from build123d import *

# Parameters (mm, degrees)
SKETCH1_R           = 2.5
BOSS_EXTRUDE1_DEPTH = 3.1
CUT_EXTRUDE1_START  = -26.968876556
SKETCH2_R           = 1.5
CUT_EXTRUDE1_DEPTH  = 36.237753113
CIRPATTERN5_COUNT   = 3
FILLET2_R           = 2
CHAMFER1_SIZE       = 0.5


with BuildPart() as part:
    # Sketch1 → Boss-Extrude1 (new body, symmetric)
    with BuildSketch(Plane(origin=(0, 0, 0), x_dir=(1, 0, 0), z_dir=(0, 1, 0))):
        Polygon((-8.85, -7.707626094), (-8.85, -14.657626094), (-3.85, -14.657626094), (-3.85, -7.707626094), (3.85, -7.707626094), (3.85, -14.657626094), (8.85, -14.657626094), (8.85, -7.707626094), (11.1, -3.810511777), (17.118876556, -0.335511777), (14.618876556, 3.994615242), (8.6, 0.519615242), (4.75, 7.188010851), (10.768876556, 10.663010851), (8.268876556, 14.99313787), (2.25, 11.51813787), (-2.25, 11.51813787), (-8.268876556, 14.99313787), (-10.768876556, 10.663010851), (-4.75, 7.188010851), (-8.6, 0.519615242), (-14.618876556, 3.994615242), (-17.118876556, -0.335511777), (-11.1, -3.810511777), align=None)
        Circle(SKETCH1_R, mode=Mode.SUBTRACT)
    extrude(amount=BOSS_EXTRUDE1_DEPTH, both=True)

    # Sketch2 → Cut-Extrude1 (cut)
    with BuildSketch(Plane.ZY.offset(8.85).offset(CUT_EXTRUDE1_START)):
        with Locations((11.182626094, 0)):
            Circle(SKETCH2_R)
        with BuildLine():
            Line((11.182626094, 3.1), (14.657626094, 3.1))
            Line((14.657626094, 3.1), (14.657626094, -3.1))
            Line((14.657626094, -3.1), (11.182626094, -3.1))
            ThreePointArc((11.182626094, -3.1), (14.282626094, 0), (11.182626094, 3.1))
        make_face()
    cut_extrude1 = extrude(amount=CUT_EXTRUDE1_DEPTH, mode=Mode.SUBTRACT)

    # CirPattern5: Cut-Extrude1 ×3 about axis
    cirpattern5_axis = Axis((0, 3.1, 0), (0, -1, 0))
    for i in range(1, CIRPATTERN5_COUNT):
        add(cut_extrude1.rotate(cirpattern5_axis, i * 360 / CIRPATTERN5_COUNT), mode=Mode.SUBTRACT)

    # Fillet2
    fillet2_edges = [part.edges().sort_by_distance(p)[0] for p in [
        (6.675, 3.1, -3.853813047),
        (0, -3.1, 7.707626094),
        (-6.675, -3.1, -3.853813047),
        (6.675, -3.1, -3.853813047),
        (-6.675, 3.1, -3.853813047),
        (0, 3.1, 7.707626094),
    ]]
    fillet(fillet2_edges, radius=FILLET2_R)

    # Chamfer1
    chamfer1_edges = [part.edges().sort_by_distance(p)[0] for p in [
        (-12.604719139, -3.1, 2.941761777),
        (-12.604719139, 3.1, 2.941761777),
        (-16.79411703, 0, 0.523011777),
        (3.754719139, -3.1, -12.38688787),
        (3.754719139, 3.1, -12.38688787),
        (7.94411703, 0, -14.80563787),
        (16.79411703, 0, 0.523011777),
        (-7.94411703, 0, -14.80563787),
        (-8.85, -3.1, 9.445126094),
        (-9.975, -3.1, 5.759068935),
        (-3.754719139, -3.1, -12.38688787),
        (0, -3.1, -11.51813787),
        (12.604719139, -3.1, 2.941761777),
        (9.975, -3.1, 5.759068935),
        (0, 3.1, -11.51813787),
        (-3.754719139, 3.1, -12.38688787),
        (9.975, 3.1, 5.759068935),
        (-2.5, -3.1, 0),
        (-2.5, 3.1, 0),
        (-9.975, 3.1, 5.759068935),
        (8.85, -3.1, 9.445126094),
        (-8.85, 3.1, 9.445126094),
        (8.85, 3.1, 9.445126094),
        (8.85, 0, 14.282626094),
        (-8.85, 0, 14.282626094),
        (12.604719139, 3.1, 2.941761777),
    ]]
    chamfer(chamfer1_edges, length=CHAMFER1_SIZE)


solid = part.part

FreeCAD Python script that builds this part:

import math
import FreeCAD as App
import Part
import Sketcher
Q = App.Units.Quantity


def edges_at(feature, points):
    """Names of the edges that pass closest to the given points."""
    edges = feature.Shape.Edges
    near = lambda p: min(range(len(edges)), key=lambda i: edges[i].distToShape(Part.Vertex(*p))[0])
    return sorted({f"Edge{near(p) + 1}" for p in points})

doc = App.newDocument("Part")
params = doc.addObject("Spreadsheet::Sheet", "Params")
for row, (alias, value) in enumerate([
    ("sketch1_diameter", "5 mm"),
    ("sketch1_width", "5 mm"),
    ("sketch1_length", "5 mm"),
    ("sketch1_width2", "7.7 mm"),
    ("sketch1_width3", "4.5 mm"),
    ("pad1_length", "6.2 mm"),
    ("sketch2_diameter", "3 mm"),
    ("sketch2_radius", "3.1 mm"),
    ("pocket1_length", "36.237753 mm"),
    ("fillet_radius", "2 mm"),
    ("chamfer_size", "0.5 mm"),
], start=1):
    params.set(f"A{row}", alias)
    params.set(f"B{row}", "=" + value)
    params.setAlias(f"B{row}", alias)

body = doc.addObject("PartDesign::Body", "Body")

# Sketch on XZ plane
sketch1 = body.newObject("Sketcher::SketchObject", "Sketch")
sketch1.AttachmentSupport = (doc.getObject("XZ_Plane"), [""])
sketch1.MapMode = "FlatFace"
sketch1.addGeometry(Part.LineSegment(App.Vector(-8.8, 7.7, 0), App.Vector(-8.8, 14.7, 0)), False)
sketch1.addGeometry(Part.LineSegment(App.Vector(-8.8, 14.7, 0), App.Vector(-3.9, 14.7, 0)), False)
sketch1.addGeometry(Part.LineSegment(App.Vector(-3.9, 14.7, 0), App.Vector(-3.9, 7.7, 0)), False)
sketch1.addGeometry(Part.LineSegment(App.Vector(-3.9, 7.7, 0), App.Vector(3.9, 7.7, 0)), False)
sketch1.addGeometry(Part.LineSegment(App.Vector(3.9, 7.7, 0), App.Vector(3.9, 14.7, 0)), False)
sketch1.addGeometry(Part.LineSegment(App.Vector(3.9, 14.7, 0), App.Vector(8.8, 14.7, 0)), False)
sketch1.addGeometry(Part.LineSegment(App.Vector(8.8, 14.7, 0), App.Vector(8.8, 7.7, 0)), False)
sketch1.addGeometry(Part.LineSegment(App.Vector(8.8, 7.7, 0), App.Vector(11.1, 3.8, 0)), False)
sketch1.addGeometry(Part.LineSegment(App.Vector(11.1, 3.8, 0), App.Vector(17.1, 0.3, 0)), False)
sketch1.addGeometry(Part.LineSegment(App.Vector(17.1, 0.3, 0), App.Vector(14.6, -4, 0)), False)
sketch1.addGeometry(Part.LineSegment(App.Vector(14.6, -4, 0), App.Vector(8.6, -0.5, 0)), False)
sketch1.addGeometry(Part.LineSegment(App.Vector(8.6, -0.5, 0), App.Vector(4.8, -7.2, 0)), False)
sketch1.addGeometry(Part.LineSegment(App.Vector(4.8, -7.2, 0), App.Vector(10.8, -10.7, 0)), False)
sketch1.addGeometry(Part.LineSegment(App.Vector(10.8, -10.7, 0), App.Vector(8.3, -15, 0)), False)
sketch1.addGeometry(Part.LineSegment(App.Vector(8.3, -15, 0), App.Vector(2.2, -11.5, 0)), False)
sketch1.addGeometry(Part.LineSegment(App.Vector(2.2, -11.5, 0), App.Vector(-2.2, -11.5, 0)), False)
sketch1.addGeometry(Part.LineSegment(App.Vector(-2.2, -11.5, 0), App.Vector(-8.3, -15, 0)), False)
sketch1.addGeometry(Part.LineSegment(App.Vector(-8.3, -15, 0), App.Vector(-10.8, -10.7, 0)), False)
sketch1.addGeometry(Part.LineSegment(App.Vector(-10.8, -10.7, 0), App.Vector(-4.8, -7.2, 0)), False)
sketch1.addGeometry(Part.LineSegment(App.Vector(-4.8, -7.2, 0), App.Vector(-8.6, -0.5, 0)), False)
sketch1.addGeometry(Part.LineSegment(App.Vector(-8.6, -0.5, 0), App.Vector(-14.6, -4, 0)), False)
sketch1.addGeometry(Part.LineSegment(App.Vector(-14.6, -4, 0), App.Vector(-17.1, 0.3, 0)), False)
sketch1.addGeometry(Part.LineSegment(App.Vector(-17.1, 0.3, 0), App.Vector(-11.1, 3.8, 0)), False)
sketch1.addGeometry(Part.LineSegment(App.Vector(-11.1, 3.8, 0), App.Vector(-8.8, 7.7, 0)), False)
sketch1.addGeometry(Part.Circle(App.Vector(0, 0, 0), App.Vector(0, 0, 1), 2.5), False)
sketch1.addConstraint(Sketcher.Constraint("Coincident", 0, 2, 1, 1))
sketch1.addConstraint(Sketcher.Constraint("Coincident", 1, 2, 2, 1))
sketch1.addConstraint(Sketcher.Constraint("Coincident", 2, 2, 3, 1))
sketch1.addConstraint(Sketcher.Constraint("Coincident", 3, 2, 4, 1))
sketch1.addConstraint(Sketcher.Constraint("Coincident", 4, 2, 5, 1))
sketch1.addConstraint(Sketcher.Constraint("Coincident", 5, 2, 6, 1))
sketch1.addConstraint(Sketcher.Constraint("Coincident", 6, 2, 7, 1))
sketch1.addConstraint(Sketcher.Constraint("Coincident", 7, 2, 8, 1))
sketch1.addConstraint(Sketcher.Constraint("Coincident", 8, 2, 9, 1))
sketch1.addConstraint(Sketcher.Constraint("Coincident", 9, 2, 10, 1))
sketch1.addConstraint(Sketcher.Constraint("Coincident", 10, 2, 11, 1))
sketch1.addConstraint(Sketcher.Constraint("Coincident", 11, 2, 12, 1))
sketch1.addConstraint(Sketcher.Constraint("Coincident", 12, 2, 13, 1))
sketch1.addConstraint(Sketcher.Constraint("Coincident", 13, 2, 14, 1))
sketch1.addConstraint(Sketcher.Constraint("Coincident", 14, 2, 15, 1))
sketch1.addConstraint(Sketcher.Constraint("Coincident", 15, 2, 16, 1))
sketch1.addConstraint(Sketcher.Constraint("Coincident", 16, 2, 17, 1))
sketch1.addConstraint(Sketcher.Constraint("Coincident", 17, 2, 18, 1))
sketch1.addConstraint(Sketcher.Constraint("Coincident", 18, 2, 19, 1))
sketch1.addConstraint(Sketcher.Constraint("Coincident", 19, 2, 20, 1))
sketch1.addConstraint(Sketcher.Constraint("Coincident", 20, 2, 21, 1))
sketch1.addConstraint(Sketcher.Constraint("Coincident", 21, 2, 22, 1))
sketch1.addConstraint(Sketcher.Constraint("Coincident", 22, 2, 23, 1))
sketch1.addConstraint(Sketcher.Constraint("Coincident", 23, 2, 0, 1))
sketch1.addConstraint(Sketcher.Constraint("Vertical", 0))
sketch1.addConstraint(Sketcher.Constraint("Horizontal", 1))
sketch1.addConstraint(Sketcher.Constraint("Vertical", 2))
sketch1.addConstraint(Sketcher.Constraint("Horizontal", 3))
sketch1.addConstraint(Sketcher.Constraint("Vertical", 4))
sketch1.addConstraint(Sketcher.Constraint("Horizontal", 5))
sketch1.addConstraint(Sketcher.Constraint("Vertical", 6))
sketch1.addConstraint(Sketcher.Constraint("Horizontal", 15))
sketch1.addConstraint(Sketcher.Constraint("Coincident", 24, 3, -1, 1))
sketch1.addConstraint(Sketcher.Constraint("Symmetric", 1, 2, 4, 2, -2))
sketch1.addConstraint(Sketcher.Constraint("Symmetric", 13, 2, 16, 2, -2))
sketch1.addConstraint(Sketcher.Constraint("Symmetric", 12, 2, 17, 2, -2))
sketch1.addConstraint(Sketcher.Constraint("Symmetric", 11, 2, 18, 2, -2))
sketch1.addConstraint(Sketcher.Constraint("Symmetric", 10, 2, 19, 2, -2))
sketch1.addConstraint(Sketcher.Constraint("Symmetric", 9, 2, 20, 2, -2))
sketch1.addConstraint(Sketcher.Constraint("Symmetric", 8, 2, 21, 2, -2))
sketch1.addConstraint(Sketcher.Constraint("Symmetric", 7, 2, 22, 2, -2))
sketch1.addConstraint(Sketcher.Constraint("Symmetric", 6, 2, 23, 2, -2))
sketch1.addConstraint(Sketcher.Constraint("Perpendicular", 8, 9))
sketch1.addConstraint(Sketcher.Constraint("Perpendicular", 9, 10))
sketch1.addConstraint(Sketcher.Constraint("Perpendicular", 10, 11))
sketch1.addConstraint(Sketcher.Constraint("Perpendicular", 11, 12))
sketch1.addConstraint(Sketcher.Constraint("Perpendicular", 12, 13))
sketch1.addConstraint(Sketcher.Constraint("Perpendicular", 13, 14))
sketch1.addConstraint(Sketcher.Constraint("Perpendicular", 7, 16))
sketch1.addConstraint(Sketcher.Constraint("Perpendicular", 16, 17))
sketch1.addConstraint(Sketcher.Constraint("Horizontal", 3, 2, 6, 2))
sketch1.addConstraint(Sketcher.Constraint("Equal", 8, 10))
sketch1.addConstraint(Sketcher.Constraint("Equal", 10, 12))
sketch1.addConstraint(Sketcher.Constraint("Equal", 9, 13))
sketch1.addConstraint(Sketcher.Constraint("Equal", 12, 14))
sketch1.addConstraint(Sketcher.Constraint("Diameter", 24, Q("5 mm")))
sketch1.addConstraint(Sketcher.Constraint("DistanceX", 1, 1, 1, 2, Q("5 mm")))
sketch1.addConstraint(Sketcher.Constraint("Angle", 7, Q("-60 deg")))
sketch1.addConstraint(Sketcher.Constraint("Distance", 9, Q("5 mm")))
sketch1.addConstraint(Sketcher.Constraint("DistanceX", 3, 1, 3, 2, Q("7.7 mm")))
sketch1.addConstraint(Sketcher.Constraint("DistanceX", 15, 2, 15, 1, Q("4.5 mm")))
sketch1.addConstraint(Sketcher.Constraint("Distance", 7, Q("4.5 mm")))
sketch1.addConstraint(Sketcher.Constraint("DistanceY", 0, 1, 0, 2, Q("6.95 mm")))
sketch1.addConstraint(Sketcher.Constraint("Distance", 8, Q("6.95 mm")))
sketch1.addConstraint(Sketcher.Constraint("DistanceY", -1, 1, 7, 2, Q("3.810512 mm")))
sketch1.setExpression("Constraints[55]", "Params.sketch1_diameter")
sketch1.setExpression("Constraints[56]", "Params.sketch1_width")
sketch1.setExpression("Constraints[58]", "Params.sketch1_length")
sketch1.setExpression("Constraints[59]", "Params.sketch1_width2")
sketch1.setExpression("Constraints[60]", "Params.sketch1_width3")
pad1 = body.newObject("PartDesign::Pad", "Pad")
pad1.Profile = sketch1
pad1.setExpression("Length", "Params.pad1_length")
pad1.Midplane = True

# Sketch on YZ plane
sketch2 = body.newObject("Sketcher::SketchObject", "Sketch001")
sketch2.AttachmentSupport = (doc.getObject("YZ_Plane"), [""])
sketch2.MapMode = "FlatFace"
sketch2.AttachmentOffset = App.Placement(App.Vector(0, 0, 18.118877), App.Rotation())
sketch2.addGeometry(Part.Circle(App.Vector(0, 11.2, 0), App.Vector(0, 0, 1), 1.5), False)
sketch2.addGeometry(Part.LineSegment(App.Vector(3.1, 14.7, 0), App.Vector(3.1, 11.2, 0)), False)
sketch2.addGeometry(Part.ArcOfCircle(Part.Circle(App.Vector(0, 11.2, 0), App.Vector(0, 0, 1), 3.1), math.radians(0), math.radians(180)), False)
sketch2.addGeometry(Part.LineSegment(App.Vector(-3.1, 11.2, 0), App.Vector(-3.1, 14.7, 0)), False)
sketch2.addGeometry(Part.LineSegment(App.Vector(-3.1, 14.7, 0), App.Vector(3.1, 14.7, 0)), False)
sketch2.addConstraint(Sketcher.Constraint("Tangent", 1, 2, 2, 1))
sketch2.addConstraint(Sketcher.Constraint("Tangent", 2, 2, 3, 1))
sketch2.addConstraint(Sketcher.Constraint("Coincident", 3, 2, 4, 1))
sketch2.addConstraint(Sketcher.Constraint("Coincident", 4, 2, 1, 1))
sketch2.addConstraint(Sketcher.Constraint("Vertical", 1))
sketch2.addConstraint(Sketcher.Constraint("Vertical", 3))
sketch2.addConstraint(Sketcher.Constraint("Horizontal", 4))
sketch2.addConstraint(Sketcher.Constraint("Coincident", 2, 3, 0, 3))
sketch2.addConstraint(Sketcher.Constraint("PointOnObject", 0, 3, -2))
sketch2.addConstraint(Sketcher.Constraint("Diameter", 0, Q("3 mm")))
sketch2.addConstraint(Sketcher.Constraint("Radius", 2, Q("3.1 mm")))
sketch2.addConstraint(Sketcher.Constraint("DistanceY", 1, 2, 1, 1, Q("3.475 mm")))
sketch2.addConstraint(Sketcher.Constraint("DistanceY", -1, 1, 0, 3, Q("11.182626 mm")))
sketch2.setExpression("Constraints[9]", "Params.sketch2_diameter")
sketch2.setExpression("Constraints[10]", "Params.sketch2_radius")
pocket1 = body.newObject("PartDesign::Pocket", "Pocket")
pocket1.Profile = sketch2
pocket1.setExpression("Length", "Params.pocket1_length")
doc.recompute()

polarpattern = body.newObject("PartDesign::PolarPattern", "PolarPattern")
polarpattern.Originals = [pocket1]
polarpattern.Axis = (doc.getObject("Y_Axis"), [""])
polarpattern.Angle = 360
polarpattern.Occurrences = 3
body.Tip = polarpattern
doc.recompute()

fillet = body.newObject("PartDesign::Fillet", "Fillet")
fillet.Base = (polarpattern, edges_at(polarpattern, [
    (6.675, 3.1, -3.854),
    (0, -3.1, 7.708),
    (-6.675, -3.1, -3.854),
    (6.675, -3.1, -3.854),
    (-6.675, 3.1, -3.854),
    (0, 3.1, 7.708),
]))
fillet.setExpression("Radius", "Params.fillet_radius")
doc.recompute()

chamfer = body.newObject("PartDesign::Chamfer", "Chamfer")
chamfer.Base = (fillet, edges_at(fillet, [
    (-12.605, -3.1, 2.942),
    (-12.605, 3.1, 2.942),
    (-16.794, 0, 0.523),
    (3.755, -3.1, -12.387),
    (3.755, 3.1, -12.387),
    (7.944, 0, -14.806),
    (16.794, 0, 0.523),
    (-7.944, 0, -14.806),
    (-8.85, -3.1, 9.445),
    (-9.975, -3.1, 5.759),
    (-3.755, -3.1, -12.387),
    (0, -3.1, -11.518),
    (12.605, -3.1, 2.942),
    (9.975, -3.1, 5.759),
    (0, 3.1, -11.518),
    (-3.755, 3.1, -12.387),
    (9.975, 3.1, 5.759),
    (-2.5, -3.1, 0),
    (-2.5, 3.1, 0),
    (-9.975, 3.1, 5.759),
    (8.85, -3.1, 9.445),
    (-8.85, 3.1, 9.445),
    (8.85, 3.1, 9.445),
    (8.85, 0, 14.283),
    (-8.85, 0, 14.283),
    (12.605, 3.1, 2.942),
]))
chamfer.setExpression("Size", "Params.chamfer_size")

doc.recompute()
